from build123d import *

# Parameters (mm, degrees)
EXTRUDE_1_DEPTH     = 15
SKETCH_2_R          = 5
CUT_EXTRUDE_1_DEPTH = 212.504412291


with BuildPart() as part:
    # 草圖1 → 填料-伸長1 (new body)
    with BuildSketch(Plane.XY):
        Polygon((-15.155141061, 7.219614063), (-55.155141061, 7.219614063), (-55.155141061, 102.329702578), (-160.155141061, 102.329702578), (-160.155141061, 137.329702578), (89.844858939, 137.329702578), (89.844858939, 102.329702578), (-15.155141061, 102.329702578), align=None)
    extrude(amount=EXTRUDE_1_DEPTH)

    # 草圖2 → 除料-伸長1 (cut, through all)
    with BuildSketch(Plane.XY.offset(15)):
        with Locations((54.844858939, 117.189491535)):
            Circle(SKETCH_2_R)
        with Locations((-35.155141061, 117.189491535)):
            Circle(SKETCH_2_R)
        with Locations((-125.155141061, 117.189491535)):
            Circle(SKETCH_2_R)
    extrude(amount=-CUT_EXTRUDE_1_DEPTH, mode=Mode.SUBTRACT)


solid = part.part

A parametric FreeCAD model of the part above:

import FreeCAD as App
import Part
import Sketcher
from FreeCAD import Vector


def add_polygon(sketch, points):
    """Adds a closed chain of lines whose ends are joined by coincident constraints."""
    first, n = sketch.GeometryCount, len(points)
    for a, b in zip(points, points[1:] + points[:1]):
        sketch.addGeometry(Part.LineSegment(App.Vector(*a, 0), App.Vector(*b, 0)), False)
    for i in range(n):
        sketch.addConstraint(Sketcher.Constraint("Coincident", first + i, 2, first + (i + 1) % n, 1))

doc = App.newDocument("Part")
body = doc.addObject("PartDesign::Body", "Body")

sketch1 = doc.addObject("Sketcher::SketchObject", "Sketch")
body.addObject(sketch1)
sketch1.AttachmentSupport = (doc.XY_Plane, [""])
sketch1.MapMode = "FlatFace"
add_polygon(sketch1, [(-55, 7), (-15, 7), (-15, 102), (90, 102), (90, 137), (-160, 137), (-160, 102), (-55, 102)])
sketch1.addConstraint([
    Sketcher.Constraint("Horizontal", 0),
    Sketcher.Constraint("Vertical", 1),
    Sketcher.Constraint("Horizontal", 2),
    Sketcher.Constraint("Vertical", 3),
    Sketcher.Constraint("Horizontal", 4),
    Sketcher.Constraint("Vertical", 5),
    Sketcher.Constraint("Horizontal", 6),
    Sketcher.Constraint("Vertical", 7),
    Sketcher.Constraint("Horizontal", 2, 2, 5, 2),
    Sketcher.Constraint("Equal", 2, 6),
    Sketcher.Constraint("DistanceX", 0, 1, 0, 2, 40.0),
    Sketcher.Constraint("DistanceX", 2, 1, 2, 2, 105.0),
    Sketcher.Constraint("DistanceY", 3, 1, 3, 2, 35.0),
    Sketcher.Constraint("DistanceY", 1, 1, 1, 2, 95.110089),
    Sketcher.Constraint("DistanceX", 0, 2, -1, 1, 15.155141),
    Sketcher.Constraint("DistanceY", -1, 1, 0, 2, 7.219614),
])
pad1 = doc.addObject("PartDesign::Pad", "Pad")
body.addObject(pad1)
pad1.Profile = sketch1
pad1.Length = 15

sketch2 = doc.addObject("Sketcher::SketchObject", "Sketch001")
body.addObject(sketch2)
sketch2.AttachmentSupport = (doc.XY_Plane, [""])
sketch2.MapMode = "FlatFace"
sketch2.AttachmentOffset = App.Placement(Vector(0, 0, 15), App.Rotation())
sketch2.addGeometry([
    Part.Circle(Vector(55, 117, 0), Vector(0, 0, 1), 5),
    Part.Circle(Vector(-35, 117, 0), Vector(0, 0, 1), 5),
    Part.Circle(Vector(-125, 117, 0), Vector(0, 0, 1), 5),
], False)
sketch2.addConstraint([
    Sketcher.Constraint("Equal", 0, 1),
    Sketcher.Constraint("Equal", 1, 2),
    Sketcher.Constraint("Horizontal", 0, 3, 1, 3),
    Sketcher.Constraint("Horizontal", 1, 3, 2, 3),
    Sketcher.Constraint("Diameter", 0, 10.0),
    Sketcher.Constraint("DistanceX", 1, 3, 0, 3, 90.0),
    Sketcher.Constraint("DistanceX", 2, 3, 1, 3, 90.0),
    Sketcher.Constraint("DistanceX", -1, 1, 0, 3, 54.844859),
    Sketcher.Constraint("DistanceY", -1, 1, 0, 3, 117.189492),
])
pocket1 = doc.addObject("PartDesign::Pocket", "Pocket")
body.addObject(pocket1)
pocket1.Profile = sketch2
pocket1.Type = "ThroughAll"

doc.recompute()
